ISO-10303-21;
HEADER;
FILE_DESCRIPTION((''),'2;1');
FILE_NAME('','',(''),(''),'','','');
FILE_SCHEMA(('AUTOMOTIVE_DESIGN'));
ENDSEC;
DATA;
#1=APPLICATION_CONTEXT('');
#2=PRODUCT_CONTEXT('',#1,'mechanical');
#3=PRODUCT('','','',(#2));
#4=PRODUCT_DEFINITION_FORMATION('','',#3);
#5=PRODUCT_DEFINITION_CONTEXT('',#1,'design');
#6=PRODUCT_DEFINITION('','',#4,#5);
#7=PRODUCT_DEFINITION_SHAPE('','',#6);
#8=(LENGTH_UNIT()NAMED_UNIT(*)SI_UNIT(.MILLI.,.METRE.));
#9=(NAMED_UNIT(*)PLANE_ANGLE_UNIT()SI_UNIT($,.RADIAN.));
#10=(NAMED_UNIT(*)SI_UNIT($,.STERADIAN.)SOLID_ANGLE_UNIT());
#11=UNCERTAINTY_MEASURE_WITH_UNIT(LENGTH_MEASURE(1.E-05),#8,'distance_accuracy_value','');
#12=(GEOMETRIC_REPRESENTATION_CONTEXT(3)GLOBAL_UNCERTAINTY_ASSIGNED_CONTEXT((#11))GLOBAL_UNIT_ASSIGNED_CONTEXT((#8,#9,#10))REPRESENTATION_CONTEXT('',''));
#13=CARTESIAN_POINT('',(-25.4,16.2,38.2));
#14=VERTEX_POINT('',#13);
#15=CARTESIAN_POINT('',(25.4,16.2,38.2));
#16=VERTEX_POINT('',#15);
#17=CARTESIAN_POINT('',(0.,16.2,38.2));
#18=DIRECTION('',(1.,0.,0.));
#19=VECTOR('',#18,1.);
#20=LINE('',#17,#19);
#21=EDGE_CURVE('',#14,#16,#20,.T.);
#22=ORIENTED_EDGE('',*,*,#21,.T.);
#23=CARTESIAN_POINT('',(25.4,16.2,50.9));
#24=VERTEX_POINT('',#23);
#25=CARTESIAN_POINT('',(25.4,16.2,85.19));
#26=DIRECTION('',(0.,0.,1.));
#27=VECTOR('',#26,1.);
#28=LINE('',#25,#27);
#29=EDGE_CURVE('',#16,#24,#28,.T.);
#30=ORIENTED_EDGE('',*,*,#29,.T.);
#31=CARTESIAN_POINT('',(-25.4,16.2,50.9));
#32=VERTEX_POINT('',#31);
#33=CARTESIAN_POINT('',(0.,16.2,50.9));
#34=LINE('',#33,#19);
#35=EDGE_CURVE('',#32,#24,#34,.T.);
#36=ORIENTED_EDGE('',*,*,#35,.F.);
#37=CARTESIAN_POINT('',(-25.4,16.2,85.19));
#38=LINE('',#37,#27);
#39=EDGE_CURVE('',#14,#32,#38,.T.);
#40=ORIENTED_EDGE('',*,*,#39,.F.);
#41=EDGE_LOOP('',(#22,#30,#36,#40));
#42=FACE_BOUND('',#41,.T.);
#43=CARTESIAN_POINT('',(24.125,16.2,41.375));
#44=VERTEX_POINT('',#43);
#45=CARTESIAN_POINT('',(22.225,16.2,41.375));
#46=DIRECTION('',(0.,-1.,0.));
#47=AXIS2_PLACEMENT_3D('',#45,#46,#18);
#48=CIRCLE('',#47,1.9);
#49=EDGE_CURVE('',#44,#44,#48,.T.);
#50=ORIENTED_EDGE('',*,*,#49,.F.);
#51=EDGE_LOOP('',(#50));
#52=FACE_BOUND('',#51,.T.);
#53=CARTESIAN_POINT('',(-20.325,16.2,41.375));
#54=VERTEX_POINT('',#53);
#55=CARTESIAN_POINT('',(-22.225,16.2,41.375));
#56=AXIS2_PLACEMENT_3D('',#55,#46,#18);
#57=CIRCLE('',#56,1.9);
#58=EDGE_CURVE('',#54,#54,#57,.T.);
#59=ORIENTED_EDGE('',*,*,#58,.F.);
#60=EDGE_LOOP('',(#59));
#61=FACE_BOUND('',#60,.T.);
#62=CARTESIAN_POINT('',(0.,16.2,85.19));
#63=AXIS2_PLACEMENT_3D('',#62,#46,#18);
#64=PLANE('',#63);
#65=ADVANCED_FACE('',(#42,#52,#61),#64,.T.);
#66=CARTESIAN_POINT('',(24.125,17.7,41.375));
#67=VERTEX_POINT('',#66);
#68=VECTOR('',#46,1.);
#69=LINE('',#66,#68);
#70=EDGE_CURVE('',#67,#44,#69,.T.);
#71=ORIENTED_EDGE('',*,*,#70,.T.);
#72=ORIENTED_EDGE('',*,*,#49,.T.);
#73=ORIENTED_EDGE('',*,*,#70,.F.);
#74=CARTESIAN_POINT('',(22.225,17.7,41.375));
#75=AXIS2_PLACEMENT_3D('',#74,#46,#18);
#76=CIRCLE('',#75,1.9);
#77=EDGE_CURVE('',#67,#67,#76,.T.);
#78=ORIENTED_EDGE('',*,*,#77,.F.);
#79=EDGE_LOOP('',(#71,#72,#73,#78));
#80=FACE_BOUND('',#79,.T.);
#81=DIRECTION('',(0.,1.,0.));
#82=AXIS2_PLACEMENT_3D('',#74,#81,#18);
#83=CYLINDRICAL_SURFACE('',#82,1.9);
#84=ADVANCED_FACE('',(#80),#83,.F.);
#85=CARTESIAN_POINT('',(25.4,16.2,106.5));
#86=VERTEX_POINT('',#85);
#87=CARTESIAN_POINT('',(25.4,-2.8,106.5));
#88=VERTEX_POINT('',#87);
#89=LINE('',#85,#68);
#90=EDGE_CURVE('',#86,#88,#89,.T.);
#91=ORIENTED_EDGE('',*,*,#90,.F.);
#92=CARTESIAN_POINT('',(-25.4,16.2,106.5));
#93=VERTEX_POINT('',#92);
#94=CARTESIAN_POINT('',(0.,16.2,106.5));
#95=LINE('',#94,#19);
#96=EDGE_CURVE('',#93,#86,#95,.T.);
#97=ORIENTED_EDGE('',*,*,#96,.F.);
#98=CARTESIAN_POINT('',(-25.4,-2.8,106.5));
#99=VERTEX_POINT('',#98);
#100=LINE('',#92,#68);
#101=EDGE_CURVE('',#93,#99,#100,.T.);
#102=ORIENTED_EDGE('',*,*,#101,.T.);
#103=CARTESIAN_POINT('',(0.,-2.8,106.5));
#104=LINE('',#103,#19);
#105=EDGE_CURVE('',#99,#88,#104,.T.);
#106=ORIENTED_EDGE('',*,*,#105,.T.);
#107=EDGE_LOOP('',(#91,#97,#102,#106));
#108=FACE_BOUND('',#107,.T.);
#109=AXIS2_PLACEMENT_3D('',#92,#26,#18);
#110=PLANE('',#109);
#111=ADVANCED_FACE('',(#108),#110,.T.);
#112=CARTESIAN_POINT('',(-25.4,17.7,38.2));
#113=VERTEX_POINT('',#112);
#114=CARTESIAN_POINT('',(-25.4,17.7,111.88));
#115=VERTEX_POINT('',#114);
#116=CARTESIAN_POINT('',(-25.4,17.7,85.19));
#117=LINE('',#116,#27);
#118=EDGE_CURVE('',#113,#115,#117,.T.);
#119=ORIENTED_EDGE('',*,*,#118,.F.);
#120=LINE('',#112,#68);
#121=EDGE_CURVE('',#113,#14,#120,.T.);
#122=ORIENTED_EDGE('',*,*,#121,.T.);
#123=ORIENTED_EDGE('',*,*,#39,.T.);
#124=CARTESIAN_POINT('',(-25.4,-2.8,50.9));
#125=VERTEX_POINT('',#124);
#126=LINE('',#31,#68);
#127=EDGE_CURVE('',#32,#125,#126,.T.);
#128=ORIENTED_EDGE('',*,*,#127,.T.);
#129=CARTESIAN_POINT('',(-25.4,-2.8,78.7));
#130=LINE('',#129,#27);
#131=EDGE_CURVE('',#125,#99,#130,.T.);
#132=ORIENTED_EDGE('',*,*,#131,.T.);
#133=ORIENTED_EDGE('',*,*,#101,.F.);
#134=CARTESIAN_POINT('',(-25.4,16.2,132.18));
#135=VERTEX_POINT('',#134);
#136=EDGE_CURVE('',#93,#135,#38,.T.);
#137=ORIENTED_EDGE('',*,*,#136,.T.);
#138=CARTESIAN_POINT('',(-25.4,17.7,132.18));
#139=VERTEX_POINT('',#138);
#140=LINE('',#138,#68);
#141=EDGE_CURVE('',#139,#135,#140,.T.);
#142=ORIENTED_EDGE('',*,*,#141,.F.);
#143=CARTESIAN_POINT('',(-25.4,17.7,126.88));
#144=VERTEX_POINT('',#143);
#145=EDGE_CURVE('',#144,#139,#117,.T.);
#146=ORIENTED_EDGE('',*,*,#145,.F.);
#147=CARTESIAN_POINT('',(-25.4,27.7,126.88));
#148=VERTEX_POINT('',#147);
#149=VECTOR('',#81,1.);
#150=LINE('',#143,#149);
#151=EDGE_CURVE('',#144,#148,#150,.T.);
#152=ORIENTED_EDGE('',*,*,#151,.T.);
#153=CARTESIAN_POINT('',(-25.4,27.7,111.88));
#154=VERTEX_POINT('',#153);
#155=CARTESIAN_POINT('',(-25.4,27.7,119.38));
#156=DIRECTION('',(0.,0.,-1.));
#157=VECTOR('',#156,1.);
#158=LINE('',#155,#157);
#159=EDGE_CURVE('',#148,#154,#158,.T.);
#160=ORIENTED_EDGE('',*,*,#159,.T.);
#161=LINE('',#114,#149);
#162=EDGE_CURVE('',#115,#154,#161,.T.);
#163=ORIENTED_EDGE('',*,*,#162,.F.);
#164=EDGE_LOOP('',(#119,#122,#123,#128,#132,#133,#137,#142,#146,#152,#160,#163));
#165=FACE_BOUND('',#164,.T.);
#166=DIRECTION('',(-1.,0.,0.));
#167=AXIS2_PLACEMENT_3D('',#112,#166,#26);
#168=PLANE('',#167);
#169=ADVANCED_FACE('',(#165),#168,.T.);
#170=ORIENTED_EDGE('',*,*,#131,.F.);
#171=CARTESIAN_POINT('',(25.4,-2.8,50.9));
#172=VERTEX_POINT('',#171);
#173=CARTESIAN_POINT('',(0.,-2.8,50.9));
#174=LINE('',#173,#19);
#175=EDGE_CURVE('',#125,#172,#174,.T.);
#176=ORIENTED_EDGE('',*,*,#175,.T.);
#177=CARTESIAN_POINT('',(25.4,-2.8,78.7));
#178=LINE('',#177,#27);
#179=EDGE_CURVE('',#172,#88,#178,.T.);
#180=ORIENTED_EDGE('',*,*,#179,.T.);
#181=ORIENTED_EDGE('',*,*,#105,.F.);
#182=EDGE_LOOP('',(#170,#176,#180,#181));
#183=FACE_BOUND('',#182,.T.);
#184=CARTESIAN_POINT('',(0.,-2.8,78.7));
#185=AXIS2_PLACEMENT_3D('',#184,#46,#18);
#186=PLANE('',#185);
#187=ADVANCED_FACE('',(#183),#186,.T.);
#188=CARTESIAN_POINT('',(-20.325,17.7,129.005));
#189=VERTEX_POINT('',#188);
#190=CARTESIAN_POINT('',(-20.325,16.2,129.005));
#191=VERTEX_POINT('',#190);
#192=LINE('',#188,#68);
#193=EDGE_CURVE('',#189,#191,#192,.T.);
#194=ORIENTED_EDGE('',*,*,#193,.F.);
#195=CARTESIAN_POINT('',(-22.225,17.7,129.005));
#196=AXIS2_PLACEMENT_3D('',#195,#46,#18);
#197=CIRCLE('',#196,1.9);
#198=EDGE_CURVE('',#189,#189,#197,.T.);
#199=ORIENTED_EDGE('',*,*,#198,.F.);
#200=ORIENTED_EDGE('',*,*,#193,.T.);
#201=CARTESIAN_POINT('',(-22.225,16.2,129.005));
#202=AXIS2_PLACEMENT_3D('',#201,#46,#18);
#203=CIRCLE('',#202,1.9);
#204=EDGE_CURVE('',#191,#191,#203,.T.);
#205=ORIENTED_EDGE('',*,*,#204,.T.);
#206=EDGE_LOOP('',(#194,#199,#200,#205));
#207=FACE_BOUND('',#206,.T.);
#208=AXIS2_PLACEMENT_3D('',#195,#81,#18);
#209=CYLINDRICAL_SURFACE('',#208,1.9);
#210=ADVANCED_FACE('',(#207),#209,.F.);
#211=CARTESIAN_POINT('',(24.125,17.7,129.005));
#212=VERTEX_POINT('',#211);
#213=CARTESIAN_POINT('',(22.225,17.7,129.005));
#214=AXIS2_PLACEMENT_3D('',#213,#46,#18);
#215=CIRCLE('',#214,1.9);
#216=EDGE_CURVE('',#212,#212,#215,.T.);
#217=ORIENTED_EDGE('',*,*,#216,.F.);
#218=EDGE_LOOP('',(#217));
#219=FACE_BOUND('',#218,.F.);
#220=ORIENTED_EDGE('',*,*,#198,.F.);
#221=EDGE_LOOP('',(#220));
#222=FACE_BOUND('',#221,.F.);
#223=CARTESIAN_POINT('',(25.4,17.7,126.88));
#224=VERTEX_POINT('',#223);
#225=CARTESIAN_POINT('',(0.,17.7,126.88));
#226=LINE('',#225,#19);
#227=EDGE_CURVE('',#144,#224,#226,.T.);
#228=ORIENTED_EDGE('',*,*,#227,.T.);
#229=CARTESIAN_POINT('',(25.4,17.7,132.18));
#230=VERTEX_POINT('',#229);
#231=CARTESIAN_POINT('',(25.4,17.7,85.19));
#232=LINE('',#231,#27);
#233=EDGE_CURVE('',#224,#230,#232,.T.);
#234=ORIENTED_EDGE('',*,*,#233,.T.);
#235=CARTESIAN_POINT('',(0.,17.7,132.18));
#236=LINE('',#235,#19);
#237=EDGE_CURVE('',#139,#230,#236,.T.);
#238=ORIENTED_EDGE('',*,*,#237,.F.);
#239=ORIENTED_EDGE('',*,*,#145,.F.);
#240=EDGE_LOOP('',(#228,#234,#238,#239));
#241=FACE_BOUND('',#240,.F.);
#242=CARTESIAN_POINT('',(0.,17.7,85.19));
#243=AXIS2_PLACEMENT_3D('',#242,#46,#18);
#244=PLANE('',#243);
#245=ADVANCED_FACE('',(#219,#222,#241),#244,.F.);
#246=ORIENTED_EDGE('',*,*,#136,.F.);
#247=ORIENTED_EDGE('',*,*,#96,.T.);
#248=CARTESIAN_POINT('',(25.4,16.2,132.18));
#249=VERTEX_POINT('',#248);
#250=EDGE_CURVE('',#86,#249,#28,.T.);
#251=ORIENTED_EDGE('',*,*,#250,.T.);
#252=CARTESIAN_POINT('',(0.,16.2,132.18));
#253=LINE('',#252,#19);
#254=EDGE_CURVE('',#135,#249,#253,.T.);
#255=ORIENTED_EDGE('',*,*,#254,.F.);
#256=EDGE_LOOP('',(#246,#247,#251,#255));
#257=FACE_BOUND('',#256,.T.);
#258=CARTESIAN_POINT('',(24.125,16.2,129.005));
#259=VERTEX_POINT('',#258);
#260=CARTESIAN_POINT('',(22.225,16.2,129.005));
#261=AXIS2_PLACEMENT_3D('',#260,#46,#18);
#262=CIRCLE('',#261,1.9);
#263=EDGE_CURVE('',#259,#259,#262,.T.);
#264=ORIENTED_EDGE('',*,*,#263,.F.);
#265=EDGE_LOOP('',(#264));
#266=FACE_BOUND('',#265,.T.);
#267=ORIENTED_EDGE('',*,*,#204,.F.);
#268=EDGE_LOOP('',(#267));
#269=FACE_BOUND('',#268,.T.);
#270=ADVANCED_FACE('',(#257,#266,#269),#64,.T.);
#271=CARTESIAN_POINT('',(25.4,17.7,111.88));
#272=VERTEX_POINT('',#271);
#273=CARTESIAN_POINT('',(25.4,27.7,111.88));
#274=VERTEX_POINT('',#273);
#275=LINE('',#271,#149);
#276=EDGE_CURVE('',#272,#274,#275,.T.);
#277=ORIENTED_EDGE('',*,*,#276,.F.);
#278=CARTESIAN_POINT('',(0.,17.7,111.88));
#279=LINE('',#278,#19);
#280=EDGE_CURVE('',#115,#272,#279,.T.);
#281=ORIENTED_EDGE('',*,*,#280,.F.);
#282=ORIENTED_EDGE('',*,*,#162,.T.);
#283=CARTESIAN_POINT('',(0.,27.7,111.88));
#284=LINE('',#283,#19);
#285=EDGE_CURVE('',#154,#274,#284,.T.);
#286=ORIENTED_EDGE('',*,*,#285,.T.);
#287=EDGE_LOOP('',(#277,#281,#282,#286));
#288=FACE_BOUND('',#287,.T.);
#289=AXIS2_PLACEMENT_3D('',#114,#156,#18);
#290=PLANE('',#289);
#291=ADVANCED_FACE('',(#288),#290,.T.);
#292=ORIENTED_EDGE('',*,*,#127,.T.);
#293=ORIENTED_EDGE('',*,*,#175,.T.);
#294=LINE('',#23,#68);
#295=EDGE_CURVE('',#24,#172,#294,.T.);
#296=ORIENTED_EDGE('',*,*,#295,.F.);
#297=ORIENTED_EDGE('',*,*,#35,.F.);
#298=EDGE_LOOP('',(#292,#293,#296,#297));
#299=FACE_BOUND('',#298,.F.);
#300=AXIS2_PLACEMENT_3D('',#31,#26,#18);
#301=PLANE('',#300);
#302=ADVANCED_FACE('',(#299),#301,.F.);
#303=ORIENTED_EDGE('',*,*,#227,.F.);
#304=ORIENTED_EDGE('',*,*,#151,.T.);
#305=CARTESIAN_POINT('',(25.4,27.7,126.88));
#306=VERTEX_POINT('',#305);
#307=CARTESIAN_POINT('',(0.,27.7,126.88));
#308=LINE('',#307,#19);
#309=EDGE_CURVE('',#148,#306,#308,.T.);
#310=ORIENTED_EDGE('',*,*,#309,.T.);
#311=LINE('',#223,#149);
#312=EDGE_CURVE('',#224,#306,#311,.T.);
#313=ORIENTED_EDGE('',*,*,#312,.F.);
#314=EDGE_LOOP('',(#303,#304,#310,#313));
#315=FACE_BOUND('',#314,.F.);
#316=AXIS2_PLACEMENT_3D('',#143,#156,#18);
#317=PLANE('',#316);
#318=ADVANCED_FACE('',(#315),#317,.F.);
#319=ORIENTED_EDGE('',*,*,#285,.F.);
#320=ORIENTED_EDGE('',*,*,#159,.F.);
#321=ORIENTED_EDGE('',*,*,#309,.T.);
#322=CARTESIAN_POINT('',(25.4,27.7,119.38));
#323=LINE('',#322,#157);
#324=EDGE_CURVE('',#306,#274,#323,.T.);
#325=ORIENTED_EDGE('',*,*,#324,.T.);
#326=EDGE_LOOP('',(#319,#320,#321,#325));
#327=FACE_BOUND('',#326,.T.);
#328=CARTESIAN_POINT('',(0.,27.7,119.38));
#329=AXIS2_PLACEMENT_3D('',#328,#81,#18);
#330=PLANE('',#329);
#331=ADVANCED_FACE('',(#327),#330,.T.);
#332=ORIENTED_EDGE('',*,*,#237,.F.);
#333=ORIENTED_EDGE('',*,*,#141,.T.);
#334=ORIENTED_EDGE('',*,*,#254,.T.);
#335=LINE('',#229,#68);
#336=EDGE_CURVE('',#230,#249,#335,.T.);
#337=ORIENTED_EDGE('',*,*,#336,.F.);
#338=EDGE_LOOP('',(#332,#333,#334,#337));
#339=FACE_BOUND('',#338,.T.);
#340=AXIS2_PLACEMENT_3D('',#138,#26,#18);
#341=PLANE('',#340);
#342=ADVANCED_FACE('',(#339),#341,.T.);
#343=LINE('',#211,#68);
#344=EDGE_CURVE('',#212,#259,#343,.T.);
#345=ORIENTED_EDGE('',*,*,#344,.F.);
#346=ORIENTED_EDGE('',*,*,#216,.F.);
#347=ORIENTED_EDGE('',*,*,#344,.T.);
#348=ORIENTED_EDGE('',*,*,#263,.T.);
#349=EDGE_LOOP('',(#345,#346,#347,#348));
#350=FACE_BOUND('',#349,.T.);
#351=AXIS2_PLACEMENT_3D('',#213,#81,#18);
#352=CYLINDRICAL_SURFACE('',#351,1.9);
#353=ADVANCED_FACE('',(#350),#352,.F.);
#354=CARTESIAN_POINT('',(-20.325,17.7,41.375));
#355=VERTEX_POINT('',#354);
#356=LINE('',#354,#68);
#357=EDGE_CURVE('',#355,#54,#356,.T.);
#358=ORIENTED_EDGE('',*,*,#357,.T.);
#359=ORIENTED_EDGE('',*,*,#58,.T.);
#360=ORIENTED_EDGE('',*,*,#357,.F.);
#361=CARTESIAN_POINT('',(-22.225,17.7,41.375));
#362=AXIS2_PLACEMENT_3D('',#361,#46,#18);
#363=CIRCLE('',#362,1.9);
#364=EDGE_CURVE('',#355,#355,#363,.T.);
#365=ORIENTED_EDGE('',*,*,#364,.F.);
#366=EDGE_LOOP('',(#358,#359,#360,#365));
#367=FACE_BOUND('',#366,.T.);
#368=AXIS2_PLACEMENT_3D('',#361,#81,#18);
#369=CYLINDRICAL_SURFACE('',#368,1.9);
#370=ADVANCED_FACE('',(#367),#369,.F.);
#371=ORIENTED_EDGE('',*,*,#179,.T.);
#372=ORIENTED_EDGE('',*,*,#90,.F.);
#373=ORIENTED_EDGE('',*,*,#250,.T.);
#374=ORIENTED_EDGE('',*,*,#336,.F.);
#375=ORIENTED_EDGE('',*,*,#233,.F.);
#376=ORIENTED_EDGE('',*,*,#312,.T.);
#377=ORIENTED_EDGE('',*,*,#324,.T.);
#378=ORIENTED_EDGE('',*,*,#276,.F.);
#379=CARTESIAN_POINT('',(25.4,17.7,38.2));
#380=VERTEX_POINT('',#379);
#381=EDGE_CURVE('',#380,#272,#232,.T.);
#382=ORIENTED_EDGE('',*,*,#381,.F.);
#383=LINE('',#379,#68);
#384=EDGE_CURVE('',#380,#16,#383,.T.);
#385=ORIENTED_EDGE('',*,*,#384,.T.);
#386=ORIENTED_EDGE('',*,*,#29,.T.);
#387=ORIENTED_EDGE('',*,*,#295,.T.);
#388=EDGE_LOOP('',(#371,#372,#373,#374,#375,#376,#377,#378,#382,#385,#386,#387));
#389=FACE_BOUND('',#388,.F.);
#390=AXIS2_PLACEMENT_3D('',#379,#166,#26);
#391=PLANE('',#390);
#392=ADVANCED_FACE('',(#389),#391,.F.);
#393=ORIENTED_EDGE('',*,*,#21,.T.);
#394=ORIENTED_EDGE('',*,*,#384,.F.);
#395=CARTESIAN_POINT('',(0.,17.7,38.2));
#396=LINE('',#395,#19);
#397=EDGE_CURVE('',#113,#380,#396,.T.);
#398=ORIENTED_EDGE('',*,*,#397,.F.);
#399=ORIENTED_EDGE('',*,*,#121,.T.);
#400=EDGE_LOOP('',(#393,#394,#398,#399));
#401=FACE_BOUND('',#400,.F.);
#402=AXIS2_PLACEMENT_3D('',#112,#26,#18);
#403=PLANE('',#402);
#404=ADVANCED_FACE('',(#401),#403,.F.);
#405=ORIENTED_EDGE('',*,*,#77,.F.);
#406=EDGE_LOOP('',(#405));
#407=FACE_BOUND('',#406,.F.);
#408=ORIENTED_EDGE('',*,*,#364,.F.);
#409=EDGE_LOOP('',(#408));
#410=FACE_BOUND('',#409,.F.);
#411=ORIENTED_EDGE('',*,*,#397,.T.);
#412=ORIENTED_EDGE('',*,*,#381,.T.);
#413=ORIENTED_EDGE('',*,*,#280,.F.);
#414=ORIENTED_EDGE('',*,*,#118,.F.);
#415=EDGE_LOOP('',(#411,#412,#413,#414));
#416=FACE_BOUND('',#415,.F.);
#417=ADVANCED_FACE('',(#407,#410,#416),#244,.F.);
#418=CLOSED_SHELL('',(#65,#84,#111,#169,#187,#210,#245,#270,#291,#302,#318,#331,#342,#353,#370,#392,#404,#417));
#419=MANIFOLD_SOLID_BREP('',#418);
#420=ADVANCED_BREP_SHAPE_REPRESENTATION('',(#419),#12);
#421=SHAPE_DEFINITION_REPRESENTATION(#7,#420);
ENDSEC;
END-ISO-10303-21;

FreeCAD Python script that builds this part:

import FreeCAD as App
import Part
import Sketcher

V = App.Vector
Q = App.Units.Quantity

doc = App.newDocument("Part")
body = doc.addObject("PartDesign::Body", "Body")

sketch1 = body.newObject("Sketcher::SketchObject", "Sketch")
sketch1.AttachmentSupport = (doc.getObject("XZ_Plane"), [""])
sketch1.MapMode = "FlatFace"
sketch1.addGeometry(Part.LineSegment(V(-25.4, 132.2, 0), V(-25.4, 38.2, 0)), False)
sketch1.addGeometry(Part.LineSegment(V(-25.4, 38.2, 0), V(25.4, 38.2, 0)), False)
sketch1.addGeometry(Part.LineSegment(V(25.4, 38.2, 0), V(25.4, 132.2, 0)), False)
sketch1.addGeometry(Part.LineSegment(V(25.4, 132.2, 0), V(-25.4, 132.2, 0)), False)
sketch1.addGeometry(Part.Circle(V(-22.2, 41.4, 0), V(0, 0, 1), 1.9), False)
sketch1.addGeometry(Part.Circle(V(22.2, 41.4, 0), V(0, 0, 1), 1.9), False)
sketch1.addGeometry(Part.Circle(V(-22.2, 129, 0), V(0, 0, 1), 1.9), False)
sketch1.addGeometry(Part.Circle(V(22.2, 129, 0), V(0, 0, 1), 1.9), False)
sketch1.addConstraint(Sketcher.Constraint("Coincident", 0, 2, 1, 1))
sketch1.addConstraint(Sketcher.Constraint("Coincident", 1, 2, 2, 1))
sketch1.addConstraint(Sketcher.Constraint("Coincident", 2, 2, 3, 1))
sketch1.addConstraint(Sketcher.Constraint("Coincident", 3, 2, 0, 1))
sketch1.addConstraint(Sketcher.Constraint("Vertical", 0))
sketch1.addConstraint(Sketcher.Constraint("Horizontal", 1))
sketch1.addConstraint(Sketcher.Constraint("Vertical", 2))
sketch1.addConstraint(Sketcher.Constraint("Horizontal", 3))
sketch1.addConstraint(Sketcher.Constraint("Equal", 4, 5))
sketch1.addConstraint(Sketcher.Constraint("Equal", 5, 6))
sketch1.addConstraint(Sketcher.Constraint("Equal", 6, 7))
sketch1.addConstraint(Sketcher.Constraint("Symmetric", 4, 3, 5, 3, -2))
sketch1.addConstraint(Sketcher.Constraint("Symmetric", 6, 3, 7, 3, -2))
sketch1.addConstraint(Sketcher.Constraint("Vertical", 4, 3, 6, 3))
sketch1.addConstraint(Sketcher.Constraint("Diameter", 4, Q("3.8 mm")))
sketch1.addConstraint(Sketcher.Constraint("DistanceX", 1, 1, 1, 2, Q("50.8 mm")))
sketch1.addConstraint(Sketcher.Constraint("DistanceY", 0, 2, 0, 1, Q("93.98 mm")))
sketch1.addConstraint(Sketcher.Constraint("DistanceX", 0, 2, -1, 1, Q("25.4 mm")))
sketch1.addConstraint(Sketcher.Constraint("DistanceY", -1, 1, 0, 2, Q("38.2 mm")))
sketch1.addConstraint(Sketcher.Constraint("DistanceX", 4, 3, 5, 3, Q("44.45 mm")))
sketch1.addConstraint(Sketcher.Constraint("DistanceY", 4, 3, 6, 3, Q("87.63 mm")))
sketch1.addConstraint(Sketcher.Constraint("DistanceY", -1, 1, 4, 3, Q("41.375 mm")))
pad1 = body.newObject("PartDesign::Pad", "Pad")
pad1.Profile = sketch1
pad1.Length = 1.5

sketch2 = body.newObject("Sketcher::SketchObject", "Sketch001")
sketch2.AttachmentSupport = (doc.getObject("XZ_Plane"), [""])
sketch2.MapMode = "FlatFace"
sketch2.AttachmentOffset = App.Placement(V(0, 0, 1.5), App.Rotation())
sketch2.addGeometry(Part.LineSegment(V(-25, 106, 0), V(-25, 51, 0)), False)
sketch2.addGeometry(Part.LineSegment(V(-25, 51, 0), V(25, 51, 0)), False)
sketch2.addGeometry(Part.LineSegment(V(25, 51, 0), V(25, 106, 0)), False)
sketch2.addGeometry(Part.LineSegment(V(25, 106, 0), V(-25, 106, 0)), False)
sketch2.addConstraint(Sketcher.Constraint("Coincident", 0, 2, 1, 1))
sketch2.addConstraint(Sketcher.Constraint("Coincident", 1, 2, 2, 1))
sketch2.addConstraint(Sketcher.Constraint("Coincident", 2, 2, 3, 1))
sketch2.addConstraint(Sketcher.Constraint("Coincident", 3, 2, 0, 1))
sketch2.addConstraint(Sketcher.Constraint("Vertical", 0))
sketch2.addConstraint(Sketcher.Constraint("Horizontal", 1))
sketch2.addConstraint(Sketcher.Constraint("Vertical", 2))
sketch2.addConstraint(Sketcher.Constraint("Horizontal", 3))
sketch2.addConstraint(Sketcher.Constraint("DistanceX", 1, 1, 1, 2, Q("50.8 mm")))
sketch2.addConstraint(Sketcher.Constraint("DistanceY", 0, 2, 0, 1, Q("55.6 mm")))
sketch2.addConstraint(Sketcher.Constraint("DistanceX", 0, 2, -1, 1, Q("25.4 mm")))
sketch2.addConstraint(Sketcher.Constraint("DistanceY", -1, 1, 0, 2, Q("50.9 mm")))
pad2 = body.newObject("PartDesign::Pad", "Pad001")
pad2.Profile = sketch2
pad2.Length = 19

sketch3 = body.newObject("Sketcher::SketchObject", "Sketch002")
sketch3.AttachmentSupport = (doc.getObject("XZ_Plane"), [""])
sketch3.MapMode = "FlatFace"
sketch3.addGeometry(Part.LineSegment(V(-25, 112, 0), V(-25, 127, 0)), False)
sketch3.addGeometry(Part.LineSegment(V(-25, 127, 0), V(25, 127, 0)), False)
sketch3.addGeometry(Part.LineSegment(V(25, 127, 0), V(25, 112, 0)), False)
sketch3.addGeometry(Part.LineSegment(V(25, 112, 0), V(-25, 112, 0)), False)
sketch3.addConstraint(Sketcher.Constraint("Coincident", 0, 2, 1, 1))
sketch3.addConstraint(Sketcher.Constraint("Coincident", 1, 2, 2, 1))
sketch3.addConstraint(Sketcher.Constraint("Coincident", 2, 2, 3, 1))
sketch3.addConstraint(Sketcher.Constraint("Coincident", 3, 2, 0, 1))
sketch3.addConstraint(Sketcher.Constraint("Vertical", 0))
sketch3.addConstraint(Sketcher.Constraint("Horizontal", 1))
sketch3.addConstraint(Sketcher.Constraint("Vertical", 2))
sketch3.addConstraint(Sketcher.Constraint("Horizontal", 3))
sketch3.addConstraint(Sketcher.Constraint("DistanceY", 0, 1, 0, 2, Q("15 mm")))
sketch3.addConstraint(Sketcher.Constraint("DistanceX", 1, 1, 1, 2, Q("50.8 mm")))
sketch3.addConstraint(Sketcher.Constraint("DistanceX", 0, 2, -1, 1, Q("25.4 mm")))
sketch3.addConstraint(Sketcher.Constraint("DistanceY", -1, 1, 0, 2, Q("126.88 mm")))
pad3 = body.newObject("PartDesign::Pad", "Pad002")
pad3.Profile = sketch3
pad3.Length = 10
pad3.Reversed = True
body2 = doc.addObject("PartDesign::Body", "Body001")
doc.recompute()

body.Placement = App.Placement(V(0, 17.7, 0), App.Rotation(V(0, 0, 1), 0))
boolean = body2.newObject("PartDesign::Boolean", "Boolean")
boolean.Type = "Fuse"
boolean.addObjects([body])

doc.recompute()
